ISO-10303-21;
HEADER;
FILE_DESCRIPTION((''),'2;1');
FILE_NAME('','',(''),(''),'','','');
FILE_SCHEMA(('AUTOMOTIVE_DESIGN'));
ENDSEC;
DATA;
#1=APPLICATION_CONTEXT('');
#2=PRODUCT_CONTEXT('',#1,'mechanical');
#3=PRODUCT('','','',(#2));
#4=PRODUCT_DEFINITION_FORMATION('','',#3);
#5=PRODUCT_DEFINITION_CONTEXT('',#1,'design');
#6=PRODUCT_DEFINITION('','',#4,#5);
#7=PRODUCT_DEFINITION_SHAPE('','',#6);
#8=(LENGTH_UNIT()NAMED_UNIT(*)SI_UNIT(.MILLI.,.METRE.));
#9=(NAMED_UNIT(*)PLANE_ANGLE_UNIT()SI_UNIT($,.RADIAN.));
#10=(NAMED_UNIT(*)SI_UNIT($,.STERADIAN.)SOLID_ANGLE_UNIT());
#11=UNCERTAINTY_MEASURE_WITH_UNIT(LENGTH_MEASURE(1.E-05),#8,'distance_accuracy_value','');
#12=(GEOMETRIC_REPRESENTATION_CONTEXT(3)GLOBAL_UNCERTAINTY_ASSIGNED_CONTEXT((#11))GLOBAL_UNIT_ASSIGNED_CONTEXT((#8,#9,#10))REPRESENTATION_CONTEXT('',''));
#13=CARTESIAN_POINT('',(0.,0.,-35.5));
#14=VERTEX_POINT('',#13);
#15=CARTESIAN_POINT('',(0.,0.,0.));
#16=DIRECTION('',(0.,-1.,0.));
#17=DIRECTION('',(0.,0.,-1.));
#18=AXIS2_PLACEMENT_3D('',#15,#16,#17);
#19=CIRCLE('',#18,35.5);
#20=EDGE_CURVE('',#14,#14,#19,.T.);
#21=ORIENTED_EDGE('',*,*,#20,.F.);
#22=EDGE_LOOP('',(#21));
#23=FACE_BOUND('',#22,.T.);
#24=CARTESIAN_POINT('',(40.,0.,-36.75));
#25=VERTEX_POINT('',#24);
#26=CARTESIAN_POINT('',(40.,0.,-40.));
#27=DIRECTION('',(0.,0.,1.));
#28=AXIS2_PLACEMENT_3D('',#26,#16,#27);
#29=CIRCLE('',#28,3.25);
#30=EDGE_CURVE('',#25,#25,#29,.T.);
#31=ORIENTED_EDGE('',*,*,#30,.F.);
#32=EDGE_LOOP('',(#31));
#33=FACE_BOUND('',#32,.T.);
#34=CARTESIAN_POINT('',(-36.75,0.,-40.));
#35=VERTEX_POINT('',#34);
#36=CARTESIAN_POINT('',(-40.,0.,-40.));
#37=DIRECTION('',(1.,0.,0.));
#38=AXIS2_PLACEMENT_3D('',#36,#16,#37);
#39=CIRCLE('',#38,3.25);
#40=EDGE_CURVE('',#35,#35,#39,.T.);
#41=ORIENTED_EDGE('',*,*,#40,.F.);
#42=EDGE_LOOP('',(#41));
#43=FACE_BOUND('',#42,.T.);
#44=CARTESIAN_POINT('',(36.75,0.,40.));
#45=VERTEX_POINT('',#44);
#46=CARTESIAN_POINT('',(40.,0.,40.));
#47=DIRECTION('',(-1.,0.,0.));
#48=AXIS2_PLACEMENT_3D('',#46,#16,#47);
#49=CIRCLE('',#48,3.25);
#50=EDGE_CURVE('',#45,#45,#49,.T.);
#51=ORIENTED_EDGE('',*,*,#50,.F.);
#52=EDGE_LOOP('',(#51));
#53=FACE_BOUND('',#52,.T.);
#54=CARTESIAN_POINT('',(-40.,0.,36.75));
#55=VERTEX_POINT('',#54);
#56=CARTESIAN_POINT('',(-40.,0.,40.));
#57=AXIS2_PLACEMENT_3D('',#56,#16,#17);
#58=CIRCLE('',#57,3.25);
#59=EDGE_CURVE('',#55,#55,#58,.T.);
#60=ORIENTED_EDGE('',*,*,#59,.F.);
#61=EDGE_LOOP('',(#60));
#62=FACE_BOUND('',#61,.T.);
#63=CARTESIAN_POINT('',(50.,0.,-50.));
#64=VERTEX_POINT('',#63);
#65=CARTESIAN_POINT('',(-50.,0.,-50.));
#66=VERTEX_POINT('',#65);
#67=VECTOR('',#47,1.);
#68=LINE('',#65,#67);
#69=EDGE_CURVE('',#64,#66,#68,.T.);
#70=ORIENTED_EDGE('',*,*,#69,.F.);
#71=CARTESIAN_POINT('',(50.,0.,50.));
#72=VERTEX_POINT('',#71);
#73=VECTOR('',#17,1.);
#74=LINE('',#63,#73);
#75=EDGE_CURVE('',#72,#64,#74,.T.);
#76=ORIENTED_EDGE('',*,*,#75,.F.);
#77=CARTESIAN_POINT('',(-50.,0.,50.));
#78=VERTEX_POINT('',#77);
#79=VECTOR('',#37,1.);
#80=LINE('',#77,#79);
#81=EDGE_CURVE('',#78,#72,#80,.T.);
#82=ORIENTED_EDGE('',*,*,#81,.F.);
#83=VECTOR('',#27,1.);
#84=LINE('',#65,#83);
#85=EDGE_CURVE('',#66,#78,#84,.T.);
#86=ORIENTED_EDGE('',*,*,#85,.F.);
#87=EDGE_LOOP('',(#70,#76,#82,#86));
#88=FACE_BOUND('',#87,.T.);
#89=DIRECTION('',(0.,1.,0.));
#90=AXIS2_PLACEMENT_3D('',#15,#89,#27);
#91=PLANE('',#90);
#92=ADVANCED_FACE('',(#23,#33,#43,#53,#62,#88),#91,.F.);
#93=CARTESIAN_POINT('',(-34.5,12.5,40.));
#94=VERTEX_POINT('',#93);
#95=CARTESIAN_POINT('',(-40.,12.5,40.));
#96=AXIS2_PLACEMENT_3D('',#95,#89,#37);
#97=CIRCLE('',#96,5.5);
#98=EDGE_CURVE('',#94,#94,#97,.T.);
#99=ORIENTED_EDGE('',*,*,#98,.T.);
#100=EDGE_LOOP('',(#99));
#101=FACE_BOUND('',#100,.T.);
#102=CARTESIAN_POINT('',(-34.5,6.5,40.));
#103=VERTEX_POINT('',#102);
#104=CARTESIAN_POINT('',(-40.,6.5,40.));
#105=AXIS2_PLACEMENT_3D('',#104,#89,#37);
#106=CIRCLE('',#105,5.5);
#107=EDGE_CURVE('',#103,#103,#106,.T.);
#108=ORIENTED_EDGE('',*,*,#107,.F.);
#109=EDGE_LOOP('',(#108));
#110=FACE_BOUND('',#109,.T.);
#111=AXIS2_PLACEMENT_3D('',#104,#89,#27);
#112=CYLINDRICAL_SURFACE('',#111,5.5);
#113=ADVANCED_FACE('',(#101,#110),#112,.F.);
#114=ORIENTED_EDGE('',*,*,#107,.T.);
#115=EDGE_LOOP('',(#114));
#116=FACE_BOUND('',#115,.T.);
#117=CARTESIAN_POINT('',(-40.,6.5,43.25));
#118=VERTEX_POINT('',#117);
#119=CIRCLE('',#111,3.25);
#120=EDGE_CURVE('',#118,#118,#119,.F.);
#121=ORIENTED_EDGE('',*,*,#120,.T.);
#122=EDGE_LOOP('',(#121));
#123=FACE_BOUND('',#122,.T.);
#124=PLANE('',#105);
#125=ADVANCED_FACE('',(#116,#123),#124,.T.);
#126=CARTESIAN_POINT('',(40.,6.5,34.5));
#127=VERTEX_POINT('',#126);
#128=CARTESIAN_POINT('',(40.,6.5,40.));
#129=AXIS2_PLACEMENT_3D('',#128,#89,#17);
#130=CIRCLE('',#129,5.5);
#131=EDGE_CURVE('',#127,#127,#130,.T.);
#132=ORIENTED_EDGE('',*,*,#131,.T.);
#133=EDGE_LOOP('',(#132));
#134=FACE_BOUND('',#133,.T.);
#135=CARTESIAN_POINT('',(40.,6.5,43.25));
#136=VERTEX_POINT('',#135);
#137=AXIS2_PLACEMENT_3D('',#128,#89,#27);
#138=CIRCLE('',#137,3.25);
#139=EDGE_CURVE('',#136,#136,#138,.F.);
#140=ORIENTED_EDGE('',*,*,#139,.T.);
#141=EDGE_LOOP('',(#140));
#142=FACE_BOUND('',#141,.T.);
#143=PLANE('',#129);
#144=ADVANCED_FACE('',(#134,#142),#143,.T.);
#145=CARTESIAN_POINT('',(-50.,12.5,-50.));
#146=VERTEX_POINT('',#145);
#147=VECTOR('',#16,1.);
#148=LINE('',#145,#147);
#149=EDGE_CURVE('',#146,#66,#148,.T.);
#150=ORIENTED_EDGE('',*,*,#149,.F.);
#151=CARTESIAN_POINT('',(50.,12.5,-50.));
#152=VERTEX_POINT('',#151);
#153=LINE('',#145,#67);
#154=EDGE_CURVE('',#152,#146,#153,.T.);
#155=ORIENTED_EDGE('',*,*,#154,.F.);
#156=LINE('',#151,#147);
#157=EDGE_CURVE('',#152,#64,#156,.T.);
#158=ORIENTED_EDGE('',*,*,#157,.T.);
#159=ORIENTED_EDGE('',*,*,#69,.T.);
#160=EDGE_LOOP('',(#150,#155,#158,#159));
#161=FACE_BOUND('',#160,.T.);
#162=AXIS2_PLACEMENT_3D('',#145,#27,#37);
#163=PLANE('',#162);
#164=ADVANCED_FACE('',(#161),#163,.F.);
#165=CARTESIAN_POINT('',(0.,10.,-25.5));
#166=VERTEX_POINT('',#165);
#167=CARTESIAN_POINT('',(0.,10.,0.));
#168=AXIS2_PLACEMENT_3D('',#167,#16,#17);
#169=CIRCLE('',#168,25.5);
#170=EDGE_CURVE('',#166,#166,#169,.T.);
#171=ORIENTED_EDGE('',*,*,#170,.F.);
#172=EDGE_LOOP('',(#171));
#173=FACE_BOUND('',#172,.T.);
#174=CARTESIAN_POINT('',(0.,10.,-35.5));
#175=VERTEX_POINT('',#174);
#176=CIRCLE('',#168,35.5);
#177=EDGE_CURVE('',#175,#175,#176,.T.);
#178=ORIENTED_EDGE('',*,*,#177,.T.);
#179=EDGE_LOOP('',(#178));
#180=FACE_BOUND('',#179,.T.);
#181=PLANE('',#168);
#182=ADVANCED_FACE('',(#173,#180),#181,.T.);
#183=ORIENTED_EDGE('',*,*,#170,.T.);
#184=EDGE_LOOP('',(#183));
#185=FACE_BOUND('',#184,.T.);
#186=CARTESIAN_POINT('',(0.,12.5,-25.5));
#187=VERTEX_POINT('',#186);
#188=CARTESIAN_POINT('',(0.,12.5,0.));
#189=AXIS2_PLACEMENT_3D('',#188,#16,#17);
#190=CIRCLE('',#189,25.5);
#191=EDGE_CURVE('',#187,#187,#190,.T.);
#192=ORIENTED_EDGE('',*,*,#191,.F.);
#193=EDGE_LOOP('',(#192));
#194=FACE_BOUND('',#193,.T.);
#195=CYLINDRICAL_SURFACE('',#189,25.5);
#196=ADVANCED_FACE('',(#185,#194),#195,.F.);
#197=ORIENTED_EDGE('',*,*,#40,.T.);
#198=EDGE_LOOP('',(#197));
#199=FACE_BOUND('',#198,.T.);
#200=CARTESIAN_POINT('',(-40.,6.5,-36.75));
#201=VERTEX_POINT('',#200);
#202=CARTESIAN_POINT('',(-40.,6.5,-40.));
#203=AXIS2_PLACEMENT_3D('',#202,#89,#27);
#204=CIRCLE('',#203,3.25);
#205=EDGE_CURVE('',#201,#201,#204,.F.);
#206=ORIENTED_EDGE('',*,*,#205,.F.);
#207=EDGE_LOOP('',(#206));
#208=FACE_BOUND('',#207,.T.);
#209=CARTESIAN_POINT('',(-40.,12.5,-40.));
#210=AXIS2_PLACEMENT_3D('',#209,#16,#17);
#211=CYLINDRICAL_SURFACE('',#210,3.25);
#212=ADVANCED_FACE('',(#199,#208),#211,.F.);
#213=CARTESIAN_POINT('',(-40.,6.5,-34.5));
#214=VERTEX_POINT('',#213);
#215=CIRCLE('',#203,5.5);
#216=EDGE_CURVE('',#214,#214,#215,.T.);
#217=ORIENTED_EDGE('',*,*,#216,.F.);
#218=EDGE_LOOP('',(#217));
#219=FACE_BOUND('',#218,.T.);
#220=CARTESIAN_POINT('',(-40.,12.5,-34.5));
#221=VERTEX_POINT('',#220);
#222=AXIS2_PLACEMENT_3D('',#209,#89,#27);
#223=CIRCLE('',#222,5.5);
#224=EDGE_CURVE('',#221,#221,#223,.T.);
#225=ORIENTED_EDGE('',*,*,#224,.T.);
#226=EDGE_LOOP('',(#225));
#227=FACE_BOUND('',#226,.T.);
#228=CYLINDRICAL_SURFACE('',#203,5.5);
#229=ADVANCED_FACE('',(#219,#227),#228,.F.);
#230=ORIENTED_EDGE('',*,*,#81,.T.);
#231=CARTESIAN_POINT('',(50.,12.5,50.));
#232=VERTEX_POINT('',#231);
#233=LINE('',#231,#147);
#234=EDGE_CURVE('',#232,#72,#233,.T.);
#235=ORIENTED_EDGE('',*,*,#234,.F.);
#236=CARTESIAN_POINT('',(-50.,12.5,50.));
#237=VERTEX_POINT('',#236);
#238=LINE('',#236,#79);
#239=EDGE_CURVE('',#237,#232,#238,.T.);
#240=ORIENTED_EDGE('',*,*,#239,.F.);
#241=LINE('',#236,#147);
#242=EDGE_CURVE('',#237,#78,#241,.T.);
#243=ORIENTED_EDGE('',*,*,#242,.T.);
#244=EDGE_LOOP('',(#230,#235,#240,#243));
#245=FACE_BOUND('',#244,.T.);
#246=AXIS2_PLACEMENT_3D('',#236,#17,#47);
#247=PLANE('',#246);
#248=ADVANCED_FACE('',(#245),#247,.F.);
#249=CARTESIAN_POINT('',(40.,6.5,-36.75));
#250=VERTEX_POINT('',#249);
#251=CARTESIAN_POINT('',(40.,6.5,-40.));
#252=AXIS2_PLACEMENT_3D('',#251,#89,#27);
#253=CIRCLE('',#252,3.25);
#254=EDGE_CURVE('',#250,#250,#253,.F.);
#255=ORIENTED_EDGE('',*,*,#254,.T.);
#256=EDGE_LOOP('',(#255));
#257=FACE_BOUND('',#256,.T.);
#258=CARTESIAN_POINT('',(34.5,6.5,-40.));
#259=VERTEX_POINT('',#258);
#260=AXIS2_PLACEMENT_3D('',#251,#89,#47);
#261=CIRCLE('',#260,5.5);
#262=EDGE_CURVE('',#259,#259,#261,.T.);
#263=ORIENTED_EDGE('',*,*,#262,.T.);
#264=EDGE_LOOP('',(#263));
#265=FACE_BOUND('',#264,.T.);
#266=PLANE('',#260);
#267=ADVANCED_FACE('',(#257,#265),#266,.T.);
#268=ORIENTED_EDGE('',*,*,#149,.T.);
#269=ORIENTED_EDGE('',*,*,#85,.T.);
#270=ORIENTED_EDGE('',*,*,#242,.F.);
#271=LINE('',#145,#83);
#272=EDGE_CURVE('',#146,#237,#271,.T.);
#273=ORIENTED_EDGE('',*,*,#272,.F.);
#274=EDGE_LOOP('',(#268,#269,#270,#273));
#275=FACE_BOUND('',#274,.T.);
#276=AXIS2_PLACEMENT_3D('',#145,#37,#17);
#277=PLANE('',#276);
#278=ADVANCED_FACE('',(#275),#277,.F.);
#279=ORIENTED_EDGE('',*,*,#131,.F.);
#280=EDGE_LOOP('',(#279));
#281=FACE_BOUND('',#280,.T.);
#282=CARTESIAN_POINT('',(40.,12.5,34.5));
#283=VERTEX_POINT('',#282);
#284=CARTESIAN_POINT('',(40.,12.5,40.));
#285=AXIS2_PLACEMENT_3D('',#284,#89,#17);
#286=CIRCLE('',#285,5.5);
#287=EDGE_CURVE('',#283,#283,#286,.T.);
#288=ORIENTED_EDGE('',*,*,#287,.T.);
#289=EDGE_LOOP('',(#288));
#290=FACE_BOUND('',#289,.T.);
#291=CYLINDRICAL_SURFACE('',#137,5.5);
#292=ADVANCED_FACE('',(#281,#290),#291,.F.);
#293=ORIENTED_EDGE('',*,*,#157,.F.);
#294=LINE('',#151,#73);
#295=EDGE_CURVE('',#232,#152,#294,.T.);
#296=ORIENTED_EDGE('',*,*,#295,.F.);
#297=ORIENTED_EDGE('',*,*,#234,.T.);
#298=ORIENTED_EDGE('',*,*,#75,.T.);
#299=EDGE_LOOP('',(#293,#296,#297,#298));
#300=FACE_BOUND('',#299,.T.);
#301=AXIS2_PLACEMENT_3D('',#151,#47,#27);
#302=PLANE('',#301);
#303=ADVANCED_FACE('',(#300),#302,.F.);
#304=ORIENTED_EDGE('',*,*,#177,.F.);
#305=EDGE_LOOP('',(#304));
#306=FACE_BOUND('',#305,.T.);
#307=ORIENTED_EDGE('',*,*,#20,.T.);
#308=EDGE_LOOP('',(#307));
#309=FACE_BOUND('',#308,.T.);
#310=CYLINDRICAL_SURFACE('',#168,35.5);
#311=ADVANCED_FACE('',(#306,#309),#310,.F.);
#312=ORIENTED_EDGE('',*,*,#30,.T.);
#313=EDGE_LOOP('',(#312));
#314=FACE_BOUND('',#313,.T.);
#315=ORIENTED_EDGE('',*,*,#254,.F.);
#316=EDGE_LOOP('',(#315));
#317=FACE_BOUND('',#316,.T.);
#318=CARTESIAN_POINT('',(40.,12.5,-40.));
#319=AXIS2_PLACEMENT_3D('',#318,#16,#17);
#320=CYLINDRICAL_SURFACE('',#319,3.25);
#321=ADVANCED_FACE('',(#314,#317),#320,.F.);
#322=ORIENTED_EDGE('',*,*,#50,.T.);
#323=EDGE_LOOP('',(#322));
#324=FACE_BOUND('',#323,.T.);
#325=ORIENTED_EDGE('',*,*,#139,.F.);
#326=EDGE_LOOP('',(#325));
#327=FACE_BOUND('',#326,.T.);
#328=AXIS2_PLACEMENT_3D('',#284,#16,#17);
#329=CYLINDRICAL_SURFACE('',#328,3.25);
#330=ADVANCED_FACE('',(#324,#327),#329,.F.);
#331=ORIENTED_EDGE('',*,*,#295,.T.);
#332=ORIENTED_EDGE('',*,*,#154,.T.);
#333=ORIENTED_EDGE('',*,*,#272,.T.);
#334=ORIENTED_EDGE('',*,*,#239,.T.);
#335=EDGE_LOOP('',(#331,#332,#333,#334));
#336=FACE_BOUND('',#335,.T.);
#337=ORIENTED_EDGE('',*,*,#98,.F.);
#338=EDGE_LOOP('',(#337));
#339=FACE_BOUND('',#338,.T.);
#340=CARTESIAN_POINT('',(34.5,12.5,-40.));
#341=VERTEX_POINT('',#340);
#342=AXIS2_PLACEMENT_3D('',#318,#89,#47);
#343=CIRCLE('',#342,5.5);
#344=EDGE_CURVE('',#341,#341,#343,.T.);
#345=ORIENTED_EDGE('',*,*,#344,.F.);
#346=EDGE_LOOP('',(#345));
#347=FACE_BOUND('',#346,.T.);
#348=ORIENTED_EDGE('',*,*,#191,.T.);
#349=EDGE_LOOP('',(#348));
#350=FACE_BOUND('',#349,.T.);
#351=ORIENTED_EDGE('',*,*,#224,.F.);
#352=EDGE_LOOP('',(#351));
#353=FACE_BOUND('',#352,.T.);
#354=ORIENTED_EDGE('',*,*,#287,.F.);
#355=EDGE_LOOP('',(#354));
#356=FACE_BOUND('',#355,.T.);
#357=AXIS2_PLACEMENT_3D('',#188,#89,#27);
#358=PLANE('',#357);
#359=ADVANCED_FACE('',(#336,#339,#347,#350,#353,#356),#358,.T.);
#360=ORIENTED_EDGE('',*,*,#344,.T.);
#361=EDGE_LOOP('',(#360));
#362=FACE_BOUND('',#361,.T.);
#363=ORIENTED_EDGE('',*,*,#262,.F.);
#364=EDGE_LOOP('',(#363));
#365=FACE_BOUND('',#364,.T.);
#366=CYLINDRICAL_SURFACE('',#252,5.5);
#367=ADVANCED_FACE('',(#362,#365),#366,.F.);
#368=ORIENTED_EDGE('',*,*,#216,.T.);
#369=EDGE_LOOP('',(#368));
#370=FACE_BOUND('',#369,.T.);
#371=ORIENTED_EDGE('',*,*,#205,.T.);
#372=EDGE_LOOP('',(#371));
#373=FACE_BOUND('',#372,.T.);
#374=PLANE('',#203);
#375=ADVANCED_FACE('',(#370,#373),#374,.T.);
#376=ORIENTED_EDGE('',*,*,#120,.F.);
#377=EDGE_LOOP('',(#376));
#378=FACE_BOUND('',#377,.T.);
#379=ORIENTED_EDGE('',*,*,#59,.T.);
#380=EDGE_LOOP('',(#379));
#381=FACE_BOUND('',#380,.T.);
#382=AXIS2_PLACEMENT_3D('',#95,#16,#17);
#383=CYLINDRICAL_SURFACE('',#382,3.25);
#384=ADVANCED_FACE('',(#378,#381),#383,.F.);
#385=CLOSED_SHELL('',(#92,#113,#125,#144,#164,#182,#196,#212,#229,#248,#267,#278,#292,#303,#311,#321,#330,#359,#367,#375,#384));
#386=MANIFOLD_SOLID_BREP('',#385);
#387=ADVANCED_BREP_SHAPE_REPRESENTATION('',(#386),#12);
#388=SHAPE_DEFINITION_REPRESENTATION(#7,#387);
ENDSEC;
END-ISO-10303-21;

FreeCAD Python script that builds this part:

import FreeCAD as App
import Part
import Sketcher


def add_polygon(sketch, points):
    """Adds a closed chain of lines whose ends are joined by coincident constraints."""
    first, n = sketch.GeometryCount, len(points)
    for a, b in zip(points, points[1:] + points[:1]):
        sketch.addGeometry(Part.LineSegment(App.Vector(*a, 0), App.Vector(*b, 0)), False)
    for i in range(n):
        sketch.addConstraint(Sketcher.Constraint("Coincident", first + i, 2, first + (i + 1) % n, 1))

doc = App.newDocument("Part")
body = doc.addObject("PartDesign::Body", "Body")

# Sketch on XZ plane
sketch1 = body.newObject("Sketcher::SketchObject", "Sketch")
sketch1.AttachmentSupport = (doc.getObject("XZ_Plane"), [""])
sketch1.MapMode = "FlatFace"
add_polygon(sketch1, [(-50, -50), (-50, 50), (50, 50), (50, -50)])  # lines 0-3
sketch1.addConstraint(Sketcher.Constraint("Vertical", 0))
sketch1.addConstraint(Sketcher.Constraint("Horizontal", 1))
sketch1.addConstraint(Sketcher.Constraint("Vertical", 2))
sketch1.addConstraint(Sketcher.Constraint("Horizontal", 3))
sketch1.addConstraint(Sketcher.Constraint("Symmetric", 0, 2, 2, 2, -1, 1))
sketch1.addConstraint(Sketcher.Constraint("Equal", 3, 0))
sketch1.addConstraint(Sketcher.Constraint("DistanceX", 1, 1, 1, 2, 100.0))
pad1 = body.newObject("PartDesign::Pad", "Pad")
pad1.Profile = sketch1
pad1.Length = 12.5
pad1.Reversed = True

# Sketch on XZ plane
sketch2 = body.newObject("Sketcher::SketchObject", "Sketch001")
sketch2.AttachmentSupport = (doc.getObject("XZ_Plane"), [""])
sketch2.MapMode = "FlatFace"
sketch2.addGeometry(Part.Circle(App.Vector(0, 0, 0), App.Vector(0, 0, 1), 35.5), False)
sketch2.addConstraint(Sketcher.Constraint("Coincident", 0, 3, -1, 1))
sketch2.addConstraint(Sketcher.Constraint("Diameter", 0, 71.0))
pocket1 = body.newObject("PartDesign::Pocket", "Pocket")
pocket1.Profile = sketch2
pocket1.Length = 10

# Sketch on XZ plane
sketch3 = body.newObject("Sketcher::SketchObject", "Sketch002")
sketch3.AttachmentSupport = (doc.getObject("XZ_Plane"), [""])
sketch3.MapMode = "FlatFace"
sketch3.AttachmentOffset = App.Placement(App.Vector(0, 0, -10), App.Rotation())
sketch3.addGeometry(Part.Circle(App.Vector(0, 0, 0), App.Vector(0, 0, 1), 25.5), False)
sketch3.addConstraint(Sketcher.Constraint("Coincident", 0, 3, -1, 1))
sketch3.addConstraint(Sketcher.Constraint("Diameter", 0, 51.0))
pocket2 = body.newObject("PartDesign::Pocket", "Pocket001")
pocket2.Profile = sketch3
pocket2.Type = "ThroughAll"

# Sketch on XZ plane
sketch4 = body.newObject("Sketcher::SketchObject", "Sketch003")
sketch4.AttachmentSupport = (doc.getObject("XZ_Plane"), [""])
sketch4.MapMode = "FlatFace"
sketch4.addGeometry(Part.Circle(App.Vector(-40, 40, 0), App.Vector(0, 0, 1), 3.25), False)
sketch4.addConstraint(Sketcher.Constraint("Diameter", 0, 6.5))
sketch4.addConstraint(Sketcher.Constraint("DistanceX", 0, 3, -1, 1, 40.0))
sketch4.addConstraint(Sketcher.Constraint("DistanceY", -1, 1, 0, 3, 40.0))
pocket3 = body.newObject("PartDesign::Pocket", "Pocket002")
pocket3.Profile = sketch4
pocket3.Type = "ThroughAll"
doc.recompute()

polarpattern = body.newObject("PartDesign::PolarPattern", "PolarPattern")
polarpattern.Originals = [pocket3]
polarpattern.Axis = (doc.getObject("Y_Axis"), [""])
polarpattern.Angle = 360
polarpattern.Occurrences = 4
body.Tip = polarpattern

# Sketch on XZ plane
sketch5 = body.newObject("Sketcher::SketchObject", "Sketch004")
sketch5.AttachmentSupport = (doc.getObject("XZ_Plane"), [""])
sketch5.MapMode = "FlatFace"
sketch5.AttachmentOffset = App.Placement(App.Vector(0, 0, -12.5), App.Rotation())
sketch5.addGeometry(Part.Circle(App.Vector(-40, -40, 0), App.Vector(0, 0, 1), 5.5), False)
sketch5.addConstraint(Sketcher.Constraint("Diameter", 0, 11.0))
sketch5.addConstraint(Sketcher.Constraint("DistanceX", 0, 3, -1, 1, 40.0))
sketch5.addConstraint(Sketcher.Constraint("DistanceY", 0, 3, -1, 1, 40.0))
pocket4 = body.newObject("PartDesign::Pocket", "Pocket003")
pocket4.Profile = sketch5
pocket4.Length = 6
pocket4.Reversed = True
doc.recompute()

polarpattern2 = body.newObject("PartDesign::PolarPattern", "PolarPattern001")
polarpattern2.Originals = [pocket4]
polarpattern2.Axis = (doc.getObject("Y_Axis"), [""])
polarpattern2.Angle = 360
polarpattern2.Occurrences = 4
body.Tip = polarpattern2

doc.recompute()
